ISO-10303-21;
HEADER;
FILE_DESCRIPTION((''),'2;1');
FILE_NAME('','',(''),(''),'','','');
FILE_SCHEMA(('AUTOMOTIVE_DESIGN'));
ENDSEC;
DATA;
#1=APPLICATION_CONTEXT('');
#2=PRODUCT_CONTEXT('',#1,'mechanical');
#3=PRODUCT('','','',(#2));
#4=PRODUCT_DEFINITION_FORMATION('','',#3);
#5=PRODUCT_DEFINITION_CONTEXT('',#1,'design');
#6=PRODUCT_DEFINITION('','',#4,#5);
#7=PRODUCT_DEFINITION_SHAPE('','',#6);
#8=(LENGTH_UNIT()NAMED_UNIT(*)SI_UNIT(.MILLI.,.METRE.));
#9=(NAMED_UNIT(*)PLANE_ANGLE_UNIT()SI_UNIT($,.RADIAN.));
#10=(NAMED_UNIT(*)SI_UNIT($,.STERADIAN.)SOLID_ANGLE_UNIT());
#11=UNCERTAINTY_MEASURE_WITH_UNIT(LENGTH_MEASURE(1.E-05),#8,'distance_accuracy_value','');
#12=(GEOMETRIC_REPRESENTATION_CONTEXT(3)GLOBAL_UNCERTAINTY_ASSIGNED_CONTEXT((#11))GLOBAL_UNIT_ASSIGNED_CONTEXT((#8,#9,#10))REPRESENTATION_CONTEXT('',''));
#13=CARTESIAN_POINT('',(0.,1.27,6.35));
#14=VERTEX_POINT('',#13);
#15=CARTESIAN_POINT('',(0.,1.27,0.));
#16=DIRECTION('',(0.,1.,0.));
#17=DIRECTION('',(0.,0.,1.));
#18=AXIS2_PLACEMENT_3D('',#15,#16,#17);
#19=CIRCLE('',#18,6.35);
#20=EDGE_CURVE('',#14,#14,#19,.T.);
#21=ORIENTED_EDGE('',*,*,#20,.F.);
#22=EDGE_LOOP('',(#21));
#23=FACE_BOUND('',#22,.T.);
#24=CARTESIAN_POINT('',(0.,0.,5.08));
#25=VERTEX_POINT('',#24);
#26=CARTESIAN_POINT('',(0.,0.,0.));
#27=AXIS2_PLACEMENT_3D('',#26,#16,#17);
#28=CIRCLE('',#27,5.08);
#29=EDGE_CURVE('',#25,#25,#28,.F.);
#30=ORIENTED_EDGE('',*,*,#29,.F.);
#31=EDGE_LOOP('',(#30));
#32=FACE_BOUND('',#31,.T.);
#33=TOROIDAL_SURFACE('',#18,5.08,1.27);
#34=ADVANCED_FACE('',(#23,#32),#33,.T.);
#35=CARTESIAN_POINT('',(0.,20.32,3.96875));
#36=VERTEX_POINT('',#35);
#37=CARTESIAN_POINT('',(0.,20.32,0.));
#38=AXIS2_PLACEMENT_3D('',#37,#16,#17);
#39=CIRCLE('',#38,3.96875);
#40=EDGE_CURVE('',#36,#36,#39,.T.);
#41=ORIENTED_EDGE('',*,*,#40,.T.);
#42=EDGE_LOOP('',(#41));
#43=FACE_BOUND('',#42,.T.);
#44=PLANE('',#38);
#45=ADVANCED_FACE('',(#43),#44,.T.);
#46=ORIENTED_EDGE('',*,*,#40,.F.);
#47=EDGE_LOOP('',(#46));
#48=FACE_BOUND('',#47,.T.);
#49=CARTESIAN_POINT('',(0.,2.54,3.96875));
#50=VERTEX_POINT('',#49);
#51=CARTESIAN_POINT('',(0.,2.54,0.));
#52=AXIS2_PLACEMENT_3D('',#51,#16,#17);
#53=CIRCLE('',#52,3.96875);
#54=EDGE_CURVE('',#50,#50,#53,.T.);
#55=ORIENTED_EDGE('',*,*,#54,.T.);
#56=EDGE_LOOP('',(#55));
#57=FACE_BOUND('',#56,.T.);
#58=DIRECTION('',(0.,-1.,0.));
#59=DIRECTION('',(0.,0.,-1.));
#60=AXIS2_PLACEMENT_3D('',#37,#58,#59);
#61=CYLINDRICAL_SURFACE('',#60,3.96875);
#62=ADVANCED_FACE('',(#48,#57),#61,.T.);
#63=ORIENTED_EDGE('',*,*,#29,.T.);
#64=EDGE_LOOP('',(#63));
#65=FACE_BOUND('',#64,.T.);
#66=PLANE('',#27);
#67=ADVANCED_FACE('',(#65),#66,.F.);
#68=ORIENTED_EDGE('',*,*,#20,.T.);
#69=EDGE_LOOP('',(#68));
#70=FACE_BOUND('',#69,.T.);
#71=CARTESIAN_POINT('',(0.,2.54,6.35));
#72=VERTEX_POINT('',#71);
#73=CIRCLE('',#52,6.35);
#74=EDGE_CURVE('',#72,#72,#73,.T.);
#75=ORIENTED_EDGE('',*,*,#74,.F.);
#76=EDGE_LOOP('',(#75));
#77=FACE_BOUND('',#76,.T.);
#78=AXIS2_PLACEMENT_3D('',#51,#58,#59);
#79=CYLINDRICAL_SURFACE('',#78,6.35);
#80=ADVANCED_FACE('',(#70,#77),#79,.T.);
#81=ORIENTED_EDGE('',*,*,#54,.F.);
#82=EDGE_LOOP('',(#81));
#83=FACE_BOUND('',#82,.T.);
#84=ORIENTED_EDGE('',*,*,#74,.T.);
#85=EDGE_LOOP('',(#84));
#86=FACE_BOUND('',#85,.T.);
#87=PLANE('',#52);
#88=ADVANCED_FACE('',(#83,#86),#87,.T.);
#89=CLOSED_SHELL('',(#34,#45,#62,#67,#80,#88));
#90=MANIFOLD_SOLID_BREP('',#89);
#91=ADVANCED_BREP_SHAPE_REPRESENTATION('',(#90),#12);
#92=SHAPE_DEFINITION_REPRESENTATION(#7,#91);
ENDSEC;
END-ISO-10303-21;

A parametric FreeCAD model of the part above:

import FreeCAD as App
import Part
import Sketcher

V = App.Vector
Q = App.Units.Quantity


def edges_at(feature, points):
    """Names of the edges that pass closest to the given points."""
    edges = feature.Shape.Edges
    near = lambda p: min(range(len(edges)), key=lambda i: edges[i].distToShape(Part.Vertex(*p))[0])
    return sorted({f"Edge{near(p) + 1}" for p in points})

doc = App.newDocument("Part")
body = doc.addObject("PartDesign::Body", "Body")

sketch1 = body.newObject("Sketcher::SketchObject", "Sketch")
sketch1.AttachmentSupport = (doc.getObject("XZ_Plane"), [""])
sketch1.MapMode = "FlatFace"
sketch1.addGeometry(Part.Circle(V(0, 0, 0), V(0, 0, 1), 6), False)
sketch1.addConstraint(Sketcher.Constraint("Coincident", 0, 3, -1, 1))
sketch1.addConstraint(Sketcher.Constraint("Diameter", 0, Q("0.5 in")))
pad1 = body.newObject("PartDesign::Pad", "Pad")
pad1.Profile = sketch1
pad1.Length = Q("0.1 in")
pad1.Reversed = True
doc.recompute()

fillet = body.newObject("PartDesign::Fillet", "Fillet")
fillet.Base = (pad1, edges_at(pad1, [(-6.35, 0, 0)]))
fillet.Radius = Q("0.05 in")

sketch2 = body.newObject("Sketcher::SketchObject", "Sketch001")
sketch2.AttachmentSupport = (doc.getObject("XZ_Plane"), [""])
sketch2.MapMode = "FlatFace"
sketch2.AttachmentOffset = App.Placement(V(0, 0, -0.1 * 25.4), App.Rotation())
sketch2.addGeometry(Part.Circle(V(0, 0, 0), V(0, 0, 1), 4), False)
sketch2.addConstraint(Sketcher.Constraint("Coincident", 0, 3, -1, 1))
sketch2.addConstraint(Sketcher.Constraint("Diameter", 0, Q("0.3125 in")))
pad2 = body.newObject("PartDesign::Pad", "Pad001")
pad2.Profile = sketch2
pad2.Length = Q("0.7 in")
pad2.Reversed = True

doc.recompute()
